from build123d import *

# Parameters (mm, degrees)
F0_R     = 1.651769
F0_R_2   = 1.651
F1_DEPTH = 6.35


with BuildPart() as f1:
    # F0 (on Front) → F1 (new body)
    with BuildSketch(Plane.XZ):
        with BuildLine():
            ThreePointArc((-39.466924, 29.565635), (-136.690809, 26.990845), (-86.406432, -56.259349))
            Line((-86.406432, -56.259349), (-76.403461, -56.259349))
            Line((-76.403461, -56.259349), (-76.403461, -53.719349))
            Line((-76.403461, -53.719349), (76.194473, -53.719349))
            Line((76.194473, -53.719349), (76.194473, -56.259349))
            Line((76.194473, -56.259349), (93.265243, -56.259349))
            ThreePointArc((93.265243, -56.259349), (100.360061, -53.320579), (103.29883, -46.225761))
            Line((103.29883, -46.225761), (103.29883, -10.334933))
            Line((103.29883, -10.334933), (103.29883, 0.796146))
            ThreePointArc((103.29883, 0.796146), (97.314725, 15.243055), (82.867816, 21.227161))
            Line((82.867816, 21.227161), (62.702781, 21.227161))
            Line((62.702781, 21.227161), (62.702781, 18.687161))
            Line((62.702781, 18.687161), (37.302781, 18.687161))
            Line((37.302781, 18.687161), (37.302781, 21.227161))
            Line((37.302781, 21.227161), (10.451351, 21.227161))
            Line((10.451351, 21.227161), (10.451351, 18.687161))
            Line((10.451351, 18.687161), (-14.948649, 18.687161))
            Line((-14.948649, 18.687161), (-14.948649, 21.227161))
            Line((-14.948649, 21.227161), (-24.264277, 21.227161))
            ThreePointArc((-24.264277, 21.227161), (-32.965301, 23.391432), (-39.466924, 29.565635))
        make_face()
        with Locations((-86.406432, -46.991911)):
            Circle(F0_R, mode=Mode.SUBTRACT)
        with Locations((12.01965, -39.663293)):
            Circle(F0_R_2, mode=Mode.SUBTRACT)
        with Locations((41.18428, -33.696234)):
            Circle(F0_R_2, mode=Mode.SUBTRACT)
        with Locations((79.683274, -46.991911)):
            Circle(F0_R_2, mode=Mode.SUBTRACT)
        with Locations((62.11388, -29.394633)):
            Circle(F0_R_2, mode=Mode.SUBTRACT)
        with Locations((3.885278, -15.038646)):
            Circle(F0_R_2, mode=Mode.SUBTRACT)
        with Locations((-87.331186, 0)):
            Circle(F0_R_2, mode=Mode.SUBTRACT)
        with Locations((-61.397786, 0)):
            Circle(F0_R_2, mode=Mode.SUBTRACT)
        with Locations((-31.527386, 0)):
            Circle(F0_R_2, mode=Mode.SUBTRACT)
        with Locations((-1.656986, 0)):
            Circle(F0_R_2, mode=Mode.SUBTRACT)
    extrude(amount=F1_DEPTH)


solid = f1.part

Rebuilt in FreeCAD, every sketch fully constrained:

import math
import FreeCAD as App
import Part
import Sketcher

V = App.Vector
Q = App.Units.Quantity

doc = App.newDocument("Part")
params = doc.addObject("Spreadsheet::Sheet", "Params")
for row, (alias, value) in enumerate([
    ("sketch1_diameter", "0.13 in"),
    ("sketch1_width", "1 in"),
    ("sketch1_height", "0.1 in"),
    ("pad1_length", "0.25 in"),
], start=1):
    params.set(f"A{row}", alias)
    params.set(f"B{row}", "=" + value)
    params.setAlias(f"B{row}", alias)

body = doc.addObject("PartDesign::Body", "Body")

sketch1 = doc.addObject("Sketcher::SketchObject", "Sketch")
body.addObject(sketch1)
sketch1.AttachmentSupport = (doc.XZ_Plane, [""])
sketch1.MapMode = "FlatFace"
sketch1.addGeometry(Part.ArcOfCircle(Part.Circle(V(-87.3, 0, 0), V(0, 0, 1), 56.3), math.radians(32), math.radians(271)), False)
sketch1.addGeometry(Part.LineSegment(V(-86.4, -56.3, 0), V(-76.4, -56.3, 0)), False)
sketch1.addGeometry(Part.LineSegment(V(-76.4, -56.3, 0), V(-76.4, -53.7, 0)), False)
sketch1.addGeometry(Part.LineSegment(V(-76.4, -53.7, 0), V(76.2, -53.7, 0)), False)
sketch1.addGeometry(Part.LineSegment(V(76.2, -53.7, 0), V(76.2, -56.3, 0)), False)
sketch1.addGeometry(Part.LineSegment(V(76.2, -56.3, 0), V(93.3, -56.3, 0)), False)
sketch1.addGeometry(Part.ArcOfCircle(Part.Circle(V(93.3, -46.2, 0), V(0, 0, 1), 10), math.radians(-90), math.radians(0)), False)
sketch1.addGeometry(Part.LineSegment(V(103.3, -46.2, 0), V(103.3, 0.8, 0)), False)
sketch1.addGeometry(Part.ArcOfCircle(Part.Circle(V(82.9, 0.8, 0), V(0, 0, 1), 20.4), math.radians(0), math.radians(90)), False)
sketch1.addGeometry(Part.LineSegment(V(82.9, 21.2, 0), V(62.7, 21.2, 0)), False)
sketch1.addGeometry(Part.LineSegment(V(62.7, 21.2, 0), V(62.7, 18.7, 0)), False)
sketch1.addGeometry(Part.LineSegment(V(62.7, 18.7, 0), V(37.3, 18.7, 0)), False)
sketch1.addGeometry(Part.LineSegment(V(37.3, 18.7, 0), V(37.3, 21.2, 0)), False)
sketch1.addGeometry(Part.LineSegment(V(37.3, 21.2, 0), V(10.5, 21.2, 0)), False)
sketch1.addGeometry(Part.LineSegment(V(10.5, 21.2, 0), V(10.5, 18.7, 0)), False)
sketch1.addGeometry(Part.LineSegment(V(10.5, 18.7, 0), V(-14.9, 18.7, 0)), False)
sketch1.addGeometry(Part.LineSegment(V(-14.9, 18.7, 0), V(-14.9, 21.2, 0)), False)
sketch1.addGeometry(Part.LineSegment(V(-14.9, 21.2, 0), V(-24.3, 21.2, 0)), False)
sketch1.addGeometry(Part.ArcOfCircle(Part.Circle(V(-24.5, 38.8, 0), V(0, 0, 1), 17.6), math.radians(-148), math.radians(-89)), False)
sketch1.addGeometry(Part.Circle(V(-86.4, -47, 0), V(0, 0, 1), 1.7), False)
sketch1.addGeometry(Part.Circle(V(12, -39.7, 0), V(0, 0, 1), 1.7), False)
sketch1.addGeometry(Part.Circle(V(79.7, -47, 0), V(0, 0, 1), 1.7), False)
sketch1.addGeometry(Part.Circle(V(41.2, -33.7, 0), V(0, 0, 1), 1.7), False)
sketch1.addGeometry(Part.Circle(V(62.1, -29.4, 0), V(0, 0, 1), 1.7), False)
sketch1.addGeometry(Part.Circle(V(-87.3, 0, 0), V(0, 0, 1), 1.7), False)
sketch1.addGeometry(Part.Circle(V(-61.4, 0, 0), V(0, 0, 1), 1.7), False)
sketch1.addGeometry(Part.Circle(V(-31.5, 0, 0), V(0, 0, 1), 1.7), False)
sketch1.addGeometry(Part.Circle(V(3.9, -15, 0), V(0, 0, 1), 1.7), False)
sketch1.addGeometry(Part.Circle(V(-1.7, 0, 0), V(0, 0, 1), 1.7), False)
sketch1.addConstraint(Sketcher.Constraint("Coincident", 0, 2, 1, 1))
sketch1.addConstraint(Sketcher.Constraint("Coincident", 1, 2, 2, 1))
sketch1.addConstraint(Sketcher.Constraint("Coincident", 2, 2, 3, 1))
sketch1.addConstraint(Sketcher.Constraint("Coincident", 3, 2, 4, 1))
sketch1.addConstraint(Sketcher.Constraint("Coincident", 4, 2, 5, 1))
sketch1.addConstraint(Sketcher.Constraint("Tangent", 5, 2, 6, 1))
sketch1.addConstraint(Sketcher.Constraint("Tangent", 6, 2, 7, 1))
sketch1.addConstraint(Sketcher.Constraint("Tangent", 7, 2, 8, 1))
sketch1.addConstraint(Sketcher.Constraint("Tangent", 8, 2, 9, 1))
sketch1.addConstraint(Sketcher.Constraint("Coincident", 9, 2, 10, 1))
sketch1.addConstraint(Sketcher.Constraint("Coincident", 10, 2, 11, 1))
sketch1.addConstraint(Sketcher.Constraint("Coincident", 11, 2, 12, 1))
sketch1.addConstraint(Sketcher.Constraint("Coincident", 12, 2, 13, 1))
sketch1.addConstraint(Sketcher.Constraint("Coincident", 13, 2, 14, 1))
sketch1.addConstraint(Sketcher.Constraint("Coincident", 14, 2, 15, 1))
sketch1.addConstraint(Sketcher.Constraint("Coincident", 15, 2, 16, 1))
sketch1.addConstraint(Sketcher.Constraint("Coincident", 16, 2, 17, 1))
sketch1.addConstraint(Sketcher.Constraint("Coincident", 17, 2, 18, 2))
sketch1.addConstraint(Sketcher.Constraint("Coincident", 18, 1, 0, 1))
sketch1.addConstraint(Sketcher.Constraint("Horizontal", 1))
sketch1.addConstraint(Sketcher.Constraint("Vertical", 2))
sketch1.addConstraint(Sketcher.Constraint("Horizontal", 3))
sketch1.addConstraint(Sketcher.Constraint("Vertical", 4))
sketch1.addConstraint(Sketcher.Constraint("Horizontal", 5))
sketch1.addConstraint(Sketcher.Constraint("Vertical", 7))
sketch1.addConstraint(Sketcher.Constraint("Horizontal", 9))
sketch1.addConstraint(Sketcher.Constraint("Vertical", 10))
sketch1.addConstraint(Sketcher.Constraint("Horizontal", 11))
sketch1.addConstraint(Sketcher.Constraint("Vertical", 12))
sketch1.addConstraint(Sketcher.Constraint("Horizontal", 13))
sketch1.addConstraint(Sketcher.Constraint("Vertical", 14))
sketch1.addConstraint(Sketcher.Constraint("Horizontal", 15))
sketch1.addConstraint(Sketcher.Constraint("Vertical", 16))
sketch1.addConstraint(Sketcher.Constraint("Horizontal", 17))
sketch1.addConstraint(Sketcher.Constraint("Equal", 20, 21))
sketch1.addConstraint(Sketcher.Constraint("Equal", 21, 22))
sketch1.addConstraint(Sketcher.Constraint("Equal", 22, 23))
sketch1.addConstraint(Sketcher.Constraint("Equal", 23, 24))
sketch1.addConstraint(Sketcher.Constraint("Equal", 24, 25))
sketch1.addConstraint(Sketcher.Constraint("Equal", 25, 26))
sketch1.addConstraint(Sketcher.Constraint("Equal", 26, 27))
sketch1.addConstraint(Sketcher.Constraint("Equal", 27, 28))
sketch1.addConstraint(Sketcher.Constraint("PointOnObject", 24, 3, -1))
sketch1.addConstraint(Sketcher.Constraint("PointOnObject", 25, 3, -1))
sketch1.addConstraint(Sketcher.Constraint("PointOnObject", 26, 3, -1))
sketch1.addConstraint(Sketcher.Constraint("PointOnObject", 28, 3, -1))
sketch1.addConstraint(Sketcher.Constraint("Horizontal", 19, 3, 21, 3))
sketch1.addConstraint(Sketcher.Constraint("Horizontal", 1, 2, 4, 2))
sketch1.addConstraint(Sketcher.Constraint("Horizontal", 9, 2, 12, 2))
sketch1.addConstraint(Sketcher.Constraint("Horizontal", 11, 2, 14, 2))
sketch1.addConstraint(Sketcher.Constraint("Horizontal", 13, 2, 16, 2))
sketch1.addConstraint(Sketcher.Constraint("Vertical", 19, 3, 0, 2))
sketch1.addConstraint(Sketcher.Constraint("Equal", 11, 15))
sketch1.addConstraint(Sketcher.Constraint("Equal", 4, 10))
sketch1.addConstraint(Sketcher.Constraint("Diameter", 20, Q("0.13 in")))
sketch1.addConstraint(Sketcher.Constraint("DistanceX", 11, 2, 11, 1, Q("1 in")))
sketch1.addConstraint(Sketcher.Constraint("DistanceY", 2, 1, 2, 2, Q("0.1 in")))
sketch1.addConstraint(Sketcher.Constraint("Diameter", 19, Q("3.303538 mm")))
sketch1.addConstraint(Sketcher.Constraint("DistanceX", 22, 3, 23, 3, Q("0.824 in")))
sketch1.addConstraint(Sketcher.Constraint("DistanceX", 24, 3, 25, 3, Q("1.021 in")))
sketch1.addConstraint(Sketcher.Constraint("DistanceX", 25, 3, 26, 3, Q("1.176 in")))
sketch1.addConstraint(Sketcher.Constraint("DistanceX", 26, 3, 28, 3, Q("1.176 in")))
sketch1.addConstraint(Sketcher.Constraint("Radius", 0, Q("56.261198 mm")))
sketch1.addConstraint(Sketcher.Constraint("Radius", 6, Q("10.033587 mm")))
sketch1.addConstraint(Sketcher.Constraint("Radius", 8, Q("20.431014 mm")))
sketch1.addConstraint(Sketcher.Constraint("Radius", 18, Q("17.577753 mm")))
sketch1.addConstraint(Sketcher.Constraint("DistanceX", 1, 1, 1, 2, Q("10.002971 mm")))
sketch1.addConstraint(Sketcher.Constraint("DistanceX", 5, 1, 5, 2, Q("17.07077 mm")))
sketch1.addConstraint(Sketcher.Constraint("DistanceX", 13, 2, 13, 1, Q("26.85143 mm")))
sketch1.addConstraint(Sketcher.Constraint("DistanceY", 22, 3, 18, 3, Q("72.4994 mm")))
sketch1.addConstraint(Sketcher.Constraint("DistanceY", 22, 3, 23, 3, Q("4.301601 mm")))
sketch1.addConstraint(Sketcher.Constraint("DistanceX", 3, 2, 21, 3, Q("3.488801 mm")))
sketch1.addConstraint(Sketcher.Constraint("DistanceX", 23, 3, 9, 2, Q("0.588901 mm")))
sketch1.addConstraint(Sketcher.Constraint("DistanceX", 3, 1, 3, 2, Q("152.597934 mm")))
sketch1.addConstraint(Sketcher.Constraint("DistanceX", 9, 2, 9, 1, Q("20.165035 mm")))
sketch1.addConstraint(Sketcher.Constraint("DistanceX", 17, 2, 17, 1, Q("9.315628 mm")))
sketch1.addConstraint(Sketcher.Constraint("DistanceY", 7, 1, 7, 2, Q("47.021907 mm")))
sketch1.addConstraint(Sketcher.Constraint("DistanceX", 0, 3, -1, 1, Q("87.329819 mm")))
sketch1.addConstraint(Sketcher.Constraint("DistanceY", 0, 3, -1, 1, Q("0.00573 mm")))
sketch1.addConstraint(Sketcher.Constraint("DistanceX", 19, 3, -1, 1, Q("86.406432 mm")))
sketch1.addConstraint(Sketcher.Constraint("DistanceY", 19, 3, -1, 1, Q("46.991911 mm")))
sketch1.addConstraint(Sketcher.Constraint("DistanceX", -1, 1, 20, 3, Q("12.01965 mm")))
sketch1.addConstraint(Sketcher.Constraint("DistanceX", -1, 1, 27, 3, Q("3.885278 mm")))
sketch1.addConstraint(Sketcher.Constraint("DistanceY", 6, 3, 20, 3, Q("6.562469 mm")))
sketch1.addConstraint(Sketcher.Constraint("DistanceX", 24, 3, 18, 3, Q("62.819041 mm")))
sketch1.addConstraint(Sketcher.Constraint("DistanceX", 18, 1, 18, 3, Q("14.954779 mm")))
sketch1.addConstraint(Sketcher.Constraint("DistanceY", 27, 3, -1, 1, Q("15.038646 mm")))
sketch1.setExpression("Constraints[54]", "Params.sketch1_diameter")
sketch1.setExpression("Constraints[55]", "Params.sketch1_width")
sketch1.setExpression("Constraints[56]", "Params.sketch1_height")
pad1 = doc.addObject("PartDesign::Pad", "Pad")
body.addObject(pad1)
pad1.Profile = sketch1
pad1.setExpression("Length", "Params.pad1_length")

doc.recompute()
